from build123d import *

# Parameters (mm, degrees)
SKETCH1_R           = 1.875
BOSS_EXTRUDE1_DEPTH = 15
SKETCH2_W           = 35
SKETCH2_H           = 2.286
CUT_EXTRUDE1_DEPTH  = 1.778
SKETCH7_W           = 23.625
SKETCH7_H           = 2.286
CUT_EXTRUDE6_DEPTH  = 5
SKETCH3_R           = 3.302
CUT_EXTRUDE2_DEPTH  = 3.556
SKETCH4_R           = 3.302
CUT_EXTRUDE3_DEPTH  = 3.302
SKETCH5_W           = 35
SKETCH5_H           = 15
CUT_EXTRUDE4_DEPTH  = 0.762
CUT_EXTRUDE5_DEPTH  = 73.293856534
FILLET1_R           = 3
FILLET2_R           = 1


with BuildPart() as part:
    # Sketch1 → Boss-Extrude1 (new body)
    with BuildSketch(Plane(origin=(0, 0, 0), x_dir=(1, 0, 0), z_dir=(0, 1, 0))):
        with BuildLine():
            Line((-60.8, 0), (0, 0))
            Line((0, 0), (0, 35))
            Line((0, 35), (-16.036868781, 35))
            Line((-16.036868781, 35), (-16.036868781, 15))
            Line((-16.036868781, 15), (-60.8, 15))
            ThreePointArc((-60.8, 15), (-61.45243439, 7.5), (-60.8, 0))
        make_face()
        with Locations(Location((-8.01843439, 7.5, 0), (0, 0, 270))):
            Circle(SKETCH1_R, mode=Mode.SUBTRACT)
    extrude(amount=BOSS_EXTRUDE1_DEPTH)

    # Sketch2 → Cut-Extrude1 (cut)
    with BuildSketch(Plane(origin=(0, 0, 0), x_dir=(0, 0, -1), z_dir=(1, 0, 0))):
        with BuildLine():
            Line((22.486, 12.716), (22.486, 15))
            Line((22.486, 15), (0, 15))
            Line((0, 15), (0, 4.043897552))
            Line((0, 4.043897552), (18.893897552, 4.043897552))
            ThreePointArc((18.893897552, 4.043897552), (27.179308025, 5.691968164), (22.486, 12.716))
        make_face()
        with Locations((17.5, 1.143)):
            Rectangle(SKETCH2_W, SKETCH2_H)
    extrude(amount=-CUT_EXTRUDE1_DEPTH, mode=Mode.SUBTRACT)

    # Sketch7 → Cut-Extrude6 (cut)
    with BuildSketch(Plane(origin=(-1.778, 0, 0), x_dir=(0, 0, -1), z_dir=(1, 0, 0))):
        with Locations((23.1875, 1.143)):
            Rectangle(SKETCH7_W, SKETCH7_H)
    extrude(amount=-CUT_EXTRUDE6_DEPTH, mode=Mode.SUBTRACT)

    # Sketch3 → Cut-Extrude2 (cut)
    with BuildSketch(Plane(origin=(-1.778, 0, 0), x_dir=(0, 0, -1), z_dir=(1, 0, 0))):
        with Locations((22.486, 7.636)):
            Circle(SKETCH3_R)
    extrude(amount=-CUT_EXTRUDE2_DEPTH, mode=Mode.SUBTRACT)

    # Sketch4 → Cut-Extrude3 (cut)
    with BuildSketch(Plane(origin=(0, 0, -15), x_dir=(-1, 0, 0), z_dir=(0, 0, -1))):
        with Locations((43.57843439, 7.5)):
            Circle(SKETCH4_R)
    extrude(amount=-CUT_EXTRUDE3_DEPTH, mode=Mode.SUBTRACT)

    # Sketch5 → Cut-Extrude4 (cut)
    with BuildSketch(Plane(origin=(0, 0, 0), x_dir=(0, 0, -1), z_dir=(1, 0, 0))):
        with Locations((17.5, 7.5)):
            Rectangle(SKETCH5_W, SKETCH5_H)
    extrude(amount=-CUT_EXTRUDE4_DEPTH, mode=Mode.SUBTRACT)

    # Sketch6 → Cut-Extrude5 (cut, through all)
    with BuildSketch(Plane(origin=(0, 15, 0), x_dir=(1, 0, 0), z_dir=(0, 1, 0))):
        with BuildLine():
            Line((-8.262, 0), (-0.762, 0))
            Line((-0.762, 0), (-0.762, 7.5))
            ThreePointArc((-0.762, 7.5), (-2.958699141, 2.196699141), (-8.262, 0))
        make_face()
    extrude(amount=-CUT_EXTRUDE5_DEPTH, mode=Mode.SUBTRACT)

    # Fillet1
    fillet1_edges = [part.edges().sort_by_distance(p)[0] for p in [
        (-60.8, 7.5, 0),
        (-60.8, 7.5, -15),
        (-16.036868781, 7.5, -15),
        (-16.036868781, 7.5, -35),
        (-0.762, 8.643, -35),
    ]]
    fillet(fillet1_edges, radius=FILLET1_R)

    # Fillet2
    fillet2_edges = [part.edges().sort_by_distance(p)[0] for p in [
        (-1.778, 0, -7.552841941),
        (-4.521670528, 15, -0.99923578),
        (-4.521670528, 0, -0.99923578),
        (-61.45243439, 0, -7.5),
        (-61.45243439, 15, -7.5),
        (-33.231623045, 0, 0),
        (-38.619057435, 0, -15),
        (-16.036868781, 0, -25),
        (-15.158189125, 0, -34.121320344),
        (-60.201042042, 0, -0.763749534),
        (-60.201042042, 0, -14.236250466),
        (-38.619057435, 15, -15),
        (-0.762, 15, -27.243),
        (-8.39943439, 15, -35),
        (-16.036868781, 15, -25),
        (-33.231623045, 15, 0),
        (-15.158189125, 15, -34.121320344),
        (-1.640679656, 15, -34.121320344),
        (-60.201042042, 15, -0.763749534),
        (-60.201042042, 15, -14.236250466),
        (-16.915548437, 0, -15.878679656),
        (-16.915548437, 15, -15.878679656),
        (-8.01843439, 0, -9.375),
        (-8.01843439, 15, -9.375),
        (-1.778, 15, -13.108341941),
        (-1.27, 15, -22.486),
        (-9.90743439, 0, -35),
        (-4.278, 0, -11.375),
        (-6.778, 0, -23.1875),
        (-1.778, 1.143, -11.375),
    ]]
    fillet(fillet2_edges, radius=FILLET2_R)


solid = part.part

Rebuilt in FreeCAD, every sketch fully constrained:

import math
import FreeCAD as App
import Part
import Sketcher


def edges_at(feature, points):
    """Names of the edges that pass closest to the given points."""
    edges = feature.Shape.Edges
    near = lambda p: min(range(len(edges)), key=lambda i: edges[i].distToShape(Part.Vertex(*p))[0])
    return sorted({f"Edge{near(p) + 1}" for p in points})

doc = App.newDocument("Part")
body = doc.addObject("PartDesign::Body", "Body")

# Sketch on XZ plane
sketch1 = body.newObject("Sketcher::SketchObject", "Sketch")
sketch1.AttachmentSupport = (doc.getObject("XZ_Plane"), [""])
sketch1.MapMode = "FlatFace"
sketch1.addGeometry([
    Part.LineSegment(App.Vector(-60.8, 0, 0), App.Vector(0, 0, 0)),  # 0
    Part.LineSegment(App.Vector(0, 0, 0), App.Vector(0, -35, 0)),  # 1
    Part.LineSegment(App.Vector(0, -35, 0), App.Vector(-16, -35, 0)),  # 2
    Part.LineSegment(App.Vector(-16, -35, 0), App.Vector(-16, -15, 0)),  # 3
    Part.LineSegment(App.Vector(-16, -15, 0), App.Vector(-60.8, -15, 0)),  # 4
    Part.ArcOfCircle(Part.Circle(App.Vector(-18, -7.5, 0), App.Vector(0, 0, 1), 43.4), math.radians(170.06), math.radians(189.94)),  # 5
    Part.Circle(App.Vector(-8, -7.5, 0), App.Vector(0, 0, 1), 1.9),  # 6
], False)
sketch1.addConstraint([
    Sketcher.Constraint("Coincident", 0, 2, 1, 1),
    Sketcher.Constraint("Coincident", 1, 2, 2, 1),
    Sketcher.Constraint("Coincident", 2, 2, 3, 1),
    Sketcher.Constraint("Coincident", 3, 2, 4, 1),
    Sketcher.Constraint("Coincident", 4, 2, 5, 2),
    Sketcher.Constraint("Coincident", 5, 1, 0, 1),
    Sketcher.Constraint("Horizontal", 0),
    Sketcher.Constraint("Vertical", 1),
    Sketcher.Constraint("Horizontal", 2),
    Sketcher.Constraint("Vertical", 3),
    Sketcher.Constraint("Horizontal", 4),
    Sketcher.Constraint("Coincident", 0, 2, -1, 1),
    Sketcher.Constraint("Horizontal", 5, 3, 6, 3),
    Sketcher.Constraint("Vertical", 4, 2, 5, 1),
    Sketcher.Constraint("Diameter", 6, 3.75),
    Sketcher.Constraint("DistanceY", 1, 2, 1, 1, 35.0),
    Sketcher.Constraint("DistanceY", 3, 1, 3, 2, 20.0),
    Sketcher.Constraint("DistanceX", 0, 1, 0, 2, 60.8),
    Sketcher.Constraint("Radius", 5, 43.434),
    Sketcher.Constraint("DistanceX", 5, 3, 6, 3, 10.0),
    Sketcher.Constraint("DistanceX", 2, 2, 2, 1, 16.036869),
])
pad1 = body.newObject("PartDesign::Pad", "Pad")
pad1.Profile = sketch1
pad1.Length = 15
pad1.Reversed = True

# Sketch on YZ plane
sketch2 = body.newObject("Sketcher::SketchObject", "Sketch001")
sketch2.AttachmentSupport = (doc.getObject("YZ_Plane"), [""])
sketch2.MapMode = "FlatFace"
sketch2.addGeometry([
    Part.LineSegment(App.Vector(12.7, -22.5, 0), App.Vector(15, -22.5, 0)),  # 0
    Part.LineSegment(App.Vector(15, -22.5, 0), App.Vector(15, 0, 0)),  # 1
    Part.LineSegment(App.Vector(15, 0, 0), App.Vector(4, 0, 0)),  # 2
    Part.LineSegment(App.Vector(4, 0, 0), App.Vector(4, -18.9, 0)),  # 3
    Part.ArcOfCircle(Part.Circle(App.Vector(7.6, -22.5, 0), App.Vector(0, 0, 1), 5.1), math.radians(135), math.radians(360)),  # 4
    Part.LineSegment(App.Vector(2.3, 0, 0), App.Vector(0, 0, 0)),  # 5
    Part.LineSegment(App.Vector(0, 0, 0), App.Vector(0, -35, 0)),  # 6
    Part.LineSegment(App.Vector(0, -35, 0), App.Vector(2.3, -35, 0)),  # 7
    Part.LineSegment(App.Vector(2.3, -35, 0), App.Vector(2.3, 0, 0)),  # 8
], False)
sketch2.addConstraint([
    Sketcher.Constraint("Coincident", 0, 2, 1, 1),
    Sketcher.Constraint("Coincident", 1, 2, 2, 1),
    Sketcher.Constraint("Coincident", 2, 2, 3, 1),
    Sketcher.Constraint("Coincident", 3, 2, 4, 1),
    Sketcher.Constraint("Coincident", 4, 2, 0, 1),
    Sketcher.Constraint("Coincident", 5, 2, 6, 1),
    Sketcher.Constraint("Coincident", 6, 2, 7, 1),
    Sketcher.Constraint("Coincident", 7, 2, 8, 1),
    Sketcher.Constraint("Coincident", 8, 2, 5, 1),
    Sketcher.Constraint("Horizontal", 0),
    Sketcher.Constraint("Vertical", 1),
    Sketcher.Constraint("Horizontal", 2),
    Sketcher.Constraint("Vertical", 3),
    Sketcher.Constraint("Horizontal", 5),
    Sketcher.Constraint("Vertical", 6),
    Sketcher.Constraint("Horizontal", 7),
    Sketcher.Constraint("Vertical", 8),
    Sketcher.Constraint("Coincident", 5, 2, -1, 1),
    Sketcher.Constraint("PointOnObject", 1, 2, -1),
    Sketcher.Constraint("Horizontal", 4, 3, 0, 2),
    Sketcher.Constraint("DistanceY", 6, 2, 6, 1, 35.0),
    Sketcher.Constraint("Radius", 4, 5.08),
    Sketcher.Constraint("DistanceX", -1, 1, 0, 2, 15.0),
    Sketcher.Constraint("DistanceX", 0, 1, 0, 2, 2.284),
    Sketcher.Constraint("DistanceX", 5, 2, 5, 1, 2.286),
    Sketcher.Constraint("DistanceY", 1, 1, 1, 2, 22.486),
    Sketcher.Constraint("DistanceX", 2, 2, 2, 1, 10.956102),
])
pocket1 = body.newObject("PartDesign::Pocket", "Pocket")
pocket1.Profile = sketch2
pocket1.Length = 1.778

# Sketch on YZ plane
sketch3 = body.newObject("Sketcher::SketchObject", "Sketch002")
sketch3.AttachmentSupport = (doc.getObject("YZ_Plane"), [""])
sketch3.MapMode = "FlatFace"
sketch3.AttachmentOffset = App.Placement(App.Vector(0, 0, -1.778), App.Rotation())
sketch3.addGeometry([
    Part.LineSegment(App.Vector(2.3, -11.4, 0), App.Vector(0, -11.4, 0)),
    Part.LineSegment(App.Vector(0, -11.4, 0), App.Vector(0, -35, 0)),
    Part.LineSegment(App.Vector(0, -35, 0), App.Vector(2.3, -35, 0)),
    Part.LineSegment(App.Vector(2.3, -35, 0), App.Vector(2.3, -11.4, 0)),
], False)
sketch3.addConstraint([
    Sketcher.Constraint("Coincident", 0, 2, 1, 1),
    Sketcher.Constraint("Coincident", 1, 2, 2, 1),
    Sketcher.Constraint("Coincident", 2, 2, 3, 1),
    Sketcher.Constraint("Coincident", 3, 2, 0, 1),
    Sketcher.Constraint("Horizontal", 0),
    Sketcher.Constraint("Vertical", 1),
    Sketcher.Constraint("Horizontal", 2),
    Sketcher.Constraint("Vertical", 3),
    Sketcher.Constraint("PointOnObject", 0, 2, -2),
    Sketcher.Constraint("DistanceY", 1, 2, -1, 1, 35.0),
    Sketcher.Constraint("DistanceX", 0, 2, 0, 1, 2.286),
    Sketcher.Constraint("DistanceY", 1, 2, 1, 1, 23.625),
])
pocket2 = body.newObject("PartDesign::Pocket", "Pocket001")
pocket2.Profile = sketch3
pocket2.Length = 5

# Sketch on YZ plane
sketch4 = body.newObject("Sketcher::SketchObject", "Sketch003")
sketch4.AttachmentSupport = (doc.getObject("YZ_Plane"), [""])
sketch4.MapMode = "FlatFace"
sketch4.AttachmentOffset = App.Placement(App.Vector(0, 0, -1.778), App.Rotation())
sketch4.addGeometry(Part.Circle(App.Vector(7.6, -22.5, 0), App.Vector(0, 0, 1), 3.3), False)
sketch4.addConstraint([
    Sketcher.Constraint("Diameter", 0, 6.604),
    Sketcher.Constraint("DistanceX", -1, 1, 0, 3, 7.636),
    Sketcher.Constraint("DistanceY", 0, 3, -1, 1, 22.486),
])
pocket3 = body.newObject("PartDesign::Pocket", "Pocket002")
pocket3.Profile = sketch4
pocket3.Length = 3.556

# Sketch on XY plane
sketch5 = body.newObject("Sketcher::SketchObject", "Sketch004")
sketch5.AttachmentSupport = (doc.getObject("XY_Plane"), [""])
sketch5.MapMode = "FlatFace"
sketch5.AttachmentOffset = App.Placement(App.Vector(0, 0, -15), App.Rotation())
sketch5.addGeometry(Part.Circle(App.Vector(-43.6, 7.5, 0), App.Vector(0, 0, 1), 3.3), False)
sketch5.addConstraint([
    Sketcher.Constraint("Diameter", 0, 6.604),
    Sketcher.Constraint("DistanceY", -1, 1, 0, 3, 7.5),
    Sketcher.Constraint("DistanceX", 0, 3, -1, 1, 43.578434),
])
pocket4 = body.newObject("PartDesign::Pocket", "Pocket003")
pocket4.Profile = sketch5
pocket4.Length = 3.302
pocket4.Reversed = True

# Sketch on YZ plane
sketch6 = body.newObject("Sketcher::SketchObject", "Sketch005")
sketch6.AttachmentSupport = (doc.getObject("YZ_Plane"), [""])
sketch6.MapMode = "FlatFace"
sketch6.addGeometry([
    Part.LineSegment(App.Vector(15, 0, 0), App.Vector(0, 0, 0)),
    Part.LineSegment(App.Vector(0, 0, 0), App.Vector(0, -35, 0)),
    Part.LineSegment(App.Vector(0, -35, 0), App.Vector(15, -35, 0)),
    Part.LineSegment(App.Vector(15, -35, 0), App.Vector(15, 0, 0)),
], False)
sketch6.addConstraint([
    Sketcher.Constraint("Coincident", 0, 2, 1, 1),
    Sketcher.Constraint("Coincident", 1, 2, 2, 1),
    Sketcher.Constraint("Coincident", 2, 2, 3, 1),
    Sketcher.Constraint("Coincident", 3, 2, 0, 1),
    Sketcher.Constraint("Horizontal", 0),
    Sketcher.Constraint("Vertical", 1),
    Sketcher.Constraint("Horizontal", 2),
    Sketcher.Constraint("Vertical", 3),
    Sketcher.Constraint("Coincident", 0, 2, -1, 1),
    Sketcher.Constraint("DistanceX", 0, 2, 0, 1, 15.0),
    Sketcher.Constraint("DistanceY", 1, 2, 1, 1, 35.0),
])
pocket5 = body.newObject("PartDesign::Pocket", "Pocket004")
pocket5.Profile = sketch6
pocket5.Length = 0.762

# Sketch on XZ plane
sketch7 = body.newObject("Sketcher::SketchObject", "Sketch006")
sketch7.AttachmentSupport = (doc.getObject("XZ_Plane"), [""])
sketch7.MapMode = "FlatFace"
sketch7.AttachmentOffset = App.Placement(App.Vector(0, 0, -15), App.Rotation())
sketch7.addGeometry([
    Part.LineSegment(App.Vector(-8, 0, 0), App.Vector(-1, 0, 0)),
    Part.LineSegment(App.Vector(-1, 0, 0), App.Vector(-1, -8, 0)),
    Part.ArcOfCircle(Part.Circle(App.Vector(-8, -8, 0), App.Vector(0, 0, 1), 8), math.radians(0), math.radians(90)),
], False)
sketch7.addConstraint([
    Sketcher.Constraint("Coincident", 0, 2, 1, 1),
    Sketcher.Constraint("Tangent", 1, 2, 2, 1),
    Sketcher.Constraint("Tangent", 2, 2, 0, 1),
    Sketcher.Constraint("Horizontal", 0),
    Sketcher.Constraint("Vertical", 1),
    Sketcher.Constraint("PointOnObject", 0, 2, -1),
    Sketcher.Constraint("Radius", 2, 7.5),
    Sketcher.Constraint("DistanceX", 2, 3, -1, 1, 8.262),
])
pocket6 = body.newObject("PartDesign::Pocket", "Pocket005")
pocket6.Profile = sketch7
pocket6.Type = "ThroughAll"
pocket6.Reversed = True
doc.recompute()

fillet = body.newObject("PartDesign::Fillet", "Fillet")
fillet.Base = (pocket6, edges_at(pocket6, [
    (-60.8, 7.5, 0),
    (-60.8, 7.5, -15),
    (-16.037, 7.5, -15),
    (-16.037, 7.5, -35),
    (-0.762, 8.643, -35),
]))
fillet.Radius = 3
doc.recompute()

fillet2 = body.newObject("PartDesign::Fillet", "Fillet001")
fillet2.Base = (fillet, edges_at(fillet, [
    (-1.778, 0, -7.553),
    (-4.522, 15, -0.999),
    (-4.522, 0, -0.999),
    (-61.452, 0, -7.5),
    (-61.452, 15, -7.5),
    (-33.232, 0, 0),
    (-38.619, 0, -15),
    (-16.037, 0, -25),
    (-15.158, 0, -34.121),
    (-60.201, 0, -0.764),
    (-60.201, 0, -14.236),
    (-38.619, 15, -15),
    (-0.762, 15, -27.243),
    (-8.399, 15, -35),
    (-16.037, 15, -25),
    (-33.232, 15, 0),
    (-15.158, 15, -34.121),
    (-1.641, 15, -34.121),
    (-60.201, 15, -0.764),
    (-60.201, 15, -14.236),
    (-16.916, 0, -15.879),
    (-16.916, 15, -15.879),
    (-8.018, 0, -9.375),
    (-8.018, 15, -9.375),
    (-1.778, 15, -13.108),
    (-1.27, 15, -22.486),
    (-9.907, 0, -35),
    (-4.278, 0, -11.375),
    (-6.778, 0, -23.188),
    (-1.778, 1.143, -11.375),
]))
fillet2.Radius = 1

doc.recompute()
